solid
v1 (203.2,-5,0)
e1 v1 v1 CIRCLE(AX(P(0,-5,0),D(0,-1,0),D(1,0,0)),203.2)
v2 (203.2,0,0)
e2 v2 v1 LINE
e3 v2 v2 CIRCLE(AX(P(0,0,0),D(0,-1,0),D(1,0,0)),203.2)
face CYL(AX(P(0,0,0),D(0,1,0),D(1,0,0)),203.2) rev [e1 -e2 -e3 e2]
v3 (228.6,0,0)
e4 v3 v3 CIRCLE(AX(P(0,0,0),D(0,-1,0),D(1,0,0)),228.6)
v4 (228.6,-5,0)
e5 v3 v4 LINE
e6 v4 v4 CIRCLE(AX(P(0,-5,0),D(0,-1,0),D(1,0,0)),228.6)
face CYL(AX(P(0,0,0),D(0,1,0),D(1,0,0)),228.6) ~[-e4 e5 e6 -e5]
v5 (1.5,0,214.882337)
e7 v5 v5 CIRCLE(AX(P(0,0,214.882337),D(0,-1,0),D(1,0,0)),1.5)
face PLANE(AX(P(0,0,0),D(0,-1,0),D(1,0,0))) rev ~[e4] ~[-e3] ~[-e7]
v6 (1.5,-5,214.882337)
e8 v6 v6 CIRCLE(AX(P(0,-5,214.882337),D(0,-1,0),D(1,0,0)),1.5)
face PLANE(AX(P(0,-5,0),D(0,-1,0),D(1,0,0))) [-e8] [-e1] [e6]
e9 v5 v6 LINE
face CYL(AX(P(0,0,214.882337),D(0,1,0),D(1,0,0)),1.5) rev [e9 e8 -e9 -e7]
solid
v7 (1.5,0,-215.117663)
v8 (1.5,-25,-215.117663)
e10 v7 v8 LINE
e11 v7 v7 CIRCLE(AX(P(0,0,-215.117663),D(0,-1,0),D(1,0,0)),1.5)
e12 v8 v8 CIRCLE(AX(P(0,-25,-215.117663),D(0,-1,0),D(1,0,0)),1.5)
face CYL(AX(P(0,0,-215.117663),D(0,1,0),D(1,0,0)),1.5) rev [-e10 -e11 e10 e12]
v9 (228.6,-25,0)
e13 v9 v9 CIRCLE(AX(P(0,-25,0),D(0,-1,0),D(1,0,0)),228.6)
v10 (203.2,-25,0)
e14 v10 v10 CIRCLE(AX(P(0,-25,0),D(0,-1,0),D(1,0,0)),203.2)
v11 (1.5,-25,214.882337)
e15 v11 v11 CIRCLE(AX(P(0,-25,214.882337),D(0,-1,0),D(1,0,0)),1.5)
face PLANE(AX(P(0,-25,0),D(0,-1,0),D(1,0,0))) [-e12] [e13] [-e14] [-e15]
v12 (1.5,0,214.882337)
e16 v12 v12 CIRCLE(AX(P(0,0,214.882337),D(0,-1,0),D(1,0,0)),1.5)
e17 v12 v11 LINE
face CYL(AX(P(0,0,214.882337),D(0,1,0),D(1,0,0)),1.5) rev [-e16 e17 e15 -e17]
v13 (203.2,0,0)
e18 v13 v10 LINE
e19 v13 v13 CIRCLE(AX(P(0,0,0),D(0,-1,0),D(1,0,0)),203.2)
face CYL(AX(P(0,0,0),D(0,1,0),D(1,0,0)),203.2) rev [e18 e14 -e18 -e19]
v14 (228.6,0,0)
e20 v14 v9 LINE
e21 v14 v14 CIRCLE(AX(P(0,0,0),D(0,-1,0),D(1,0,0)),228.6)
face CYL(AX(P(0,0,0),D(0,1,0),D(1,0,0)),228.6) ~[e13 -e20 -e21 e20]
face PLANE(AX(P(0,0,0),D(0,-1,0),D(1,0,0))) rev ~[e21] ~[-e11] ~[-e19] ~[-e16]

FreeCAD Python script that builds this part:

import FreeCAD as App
import Part
import Sketcher
from FreeCAD import Vector

doc = App.newDocument("Part")
body = doc.addObject("PartDesign::Body", "Body")

# Sketch on XZ plane
sketch1 = body.newObject("Sketcher::SketchObject", "Sketch")
sketch1.AttachmentSupport = (doc.getObject("XZ_Plane"), [""])
sketch1.MapMode = "FlatFace"
sketch1.addGeometry([
    Part.Circle(Vector(0, 0, 0), Vector(0, 0, 1), 228.6),
    Part.Circle(Vector(0, 0, 0), Vector(0, 0, 1), 203.2),
    Part.Circle(Vector(0, 214.9, 0), Vector(0, 0, 1), 1.5),
], False)
sketch1.addConstraint([
    Sketcher.Constraint("Coincident", 0, 3, -1, 1),
    Sketcher.Constraint("Coincident", 1, 3, -1, 1),
    Sketcher.Constraint("PointOnObject", 2, 3, -2),
    Sketcher.Constraint("Diameter", 2, 3.0),
    Sketcher.Constraint("Diameter", 0, 457.2),
    Sketcher.Constraint("Diameter", 1, 406.4),
    Sketcher.Constraint("DistanceY", -1, 1, 2, 3, 214.882337),
])
pad1 = body.newObject("PartDesign::Pad", "Pad")
pad1.Profile = sketch1
pad1.Length = 5
body2 = doc.addObject("PartDesign::Body", "Body001")

# Sketch on XZ plane
sketch2 = body2.newObject("Sketcher::SketchObject", "Sketch001")
sketch2.AttachmentSupport = (doc.getObject("XZ_Plane001"), [""])
sketch2.MapMode = "FlatFace"
sketch2.addGeometry([
    Part.Circle(Vector(0, 0, 0), Vector(0, 0, 1), 228.6),
    Part.Circle(Vector(0, -215.1, 0), Vector(0, 0, 1), 1.5),
    Part.Circle(Vector(0, 0, 0), Vector(0, 0, 1), 203.2),
    Part.Circle(Vector(0, 214.9, 0), Vector(0, 0, 1), 1.5),
], False)
sketch2.addConstraint([
    Sketcher.Constraint("Coincident", 0, 3, -1, 1),
    Sketcher.Constraint("Coincident", 2, 3, -1, 1),
    Sketcher.Constraint("Equal", 1, 3),
    Sketcher.Constraint("PointOnObject", 1, 3, -2),
    Sketcher.Constraint("PointOnObject", 3, 3, -2),
    Sketcher.Constraint("Diameter", 1, 3.0),
    Sketcher.Constraint("Diameter", 0, 457.2),
    Sketcher.Constraint("Diameter", 2, 406.4),
    Sketcher.Constraint("DistanceY", 1, 3, 3, 3, 430.0),
    Sketcher.Constraint("DistanceY", 1, 3, -1, 1, 215.117663),
])
pad2 = body2.newObject("PartDesign::Pad", "Pad001")
pad2.Profile = sketch2
pad2.Length = 25

doc.recompute()
